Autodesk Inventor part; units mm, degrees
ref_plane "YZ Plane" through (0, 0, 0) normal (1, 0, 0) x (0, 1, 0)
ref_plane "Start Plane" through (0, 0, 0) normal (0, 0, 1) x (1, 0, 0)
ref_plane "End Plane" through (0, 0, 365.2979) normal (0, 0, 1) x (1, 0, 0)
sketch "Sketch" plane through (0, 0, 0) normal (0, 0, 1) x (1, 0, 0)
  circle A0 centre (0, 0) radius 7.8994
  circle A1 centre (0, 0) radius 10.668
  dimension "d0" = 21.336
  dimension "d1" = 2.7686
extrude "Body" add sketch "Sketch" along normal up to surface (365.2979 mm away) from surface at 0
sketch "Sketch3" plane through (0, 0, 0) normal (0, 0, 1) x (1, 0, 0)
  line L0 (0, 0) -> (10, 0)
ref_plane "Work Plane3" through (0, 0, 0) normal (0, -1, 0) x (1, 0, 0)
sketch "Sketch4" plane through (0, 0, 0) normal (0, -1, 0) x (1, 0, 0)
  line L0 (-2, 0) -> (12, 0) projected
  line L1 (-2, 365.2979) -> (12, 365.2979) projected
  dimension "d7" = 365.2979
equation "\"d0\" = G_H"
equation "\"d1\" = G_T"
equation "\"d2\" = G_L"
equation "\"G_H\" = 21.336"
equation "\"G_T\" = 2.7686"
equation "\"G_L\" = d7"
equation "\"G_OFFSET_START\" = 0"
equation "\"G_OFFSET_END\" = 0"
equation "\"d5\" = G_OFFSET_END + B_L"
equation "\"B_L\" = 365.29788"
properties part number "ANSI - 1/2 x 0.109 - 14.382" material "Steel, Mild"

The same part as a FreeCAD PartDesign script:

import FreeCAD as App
import Part
import Sketcher

V = App.Vector
Q = App.Units.Quantity

doc = App.newDocument("Part")
body = doc.addObject("PartDesign::Body", "Body")

# Sketch on XY plane
sketch1 = body.newObject("Sketcher::SketchObject", "Sketch")
sketch1.AttachmentSupport = (doc.getObject("XY_Plane"), [""])
sketch1.MapMode = "FlatFace"
sketch1.addGeometry([
    Part.Circle(V(0, 0, 0), V(0, 0, 1), 10.668),
    Part.Circle(V(0, 0, 0), V(0, 0, 1), 7.8994),
], False)
sketch1.addConstraint([
    Sketcher.Constraint("Coincident", 0, 3, -1, 1),
    Sketcher.Constraint("Coincident", 1, 3, -1, 1),
    Sketcher.Constraint("Diameter", 0, Q("0.84 in")),
    Sketcher.Constraint("Diameter", 1, Q("0.622 in")),
])
pad1 = body.newObject("PartDesign::Pad", "Pad")
pad1.Profile = sketch1
pad1.Length = Q("14.3818071 in")

doc.recompute()
